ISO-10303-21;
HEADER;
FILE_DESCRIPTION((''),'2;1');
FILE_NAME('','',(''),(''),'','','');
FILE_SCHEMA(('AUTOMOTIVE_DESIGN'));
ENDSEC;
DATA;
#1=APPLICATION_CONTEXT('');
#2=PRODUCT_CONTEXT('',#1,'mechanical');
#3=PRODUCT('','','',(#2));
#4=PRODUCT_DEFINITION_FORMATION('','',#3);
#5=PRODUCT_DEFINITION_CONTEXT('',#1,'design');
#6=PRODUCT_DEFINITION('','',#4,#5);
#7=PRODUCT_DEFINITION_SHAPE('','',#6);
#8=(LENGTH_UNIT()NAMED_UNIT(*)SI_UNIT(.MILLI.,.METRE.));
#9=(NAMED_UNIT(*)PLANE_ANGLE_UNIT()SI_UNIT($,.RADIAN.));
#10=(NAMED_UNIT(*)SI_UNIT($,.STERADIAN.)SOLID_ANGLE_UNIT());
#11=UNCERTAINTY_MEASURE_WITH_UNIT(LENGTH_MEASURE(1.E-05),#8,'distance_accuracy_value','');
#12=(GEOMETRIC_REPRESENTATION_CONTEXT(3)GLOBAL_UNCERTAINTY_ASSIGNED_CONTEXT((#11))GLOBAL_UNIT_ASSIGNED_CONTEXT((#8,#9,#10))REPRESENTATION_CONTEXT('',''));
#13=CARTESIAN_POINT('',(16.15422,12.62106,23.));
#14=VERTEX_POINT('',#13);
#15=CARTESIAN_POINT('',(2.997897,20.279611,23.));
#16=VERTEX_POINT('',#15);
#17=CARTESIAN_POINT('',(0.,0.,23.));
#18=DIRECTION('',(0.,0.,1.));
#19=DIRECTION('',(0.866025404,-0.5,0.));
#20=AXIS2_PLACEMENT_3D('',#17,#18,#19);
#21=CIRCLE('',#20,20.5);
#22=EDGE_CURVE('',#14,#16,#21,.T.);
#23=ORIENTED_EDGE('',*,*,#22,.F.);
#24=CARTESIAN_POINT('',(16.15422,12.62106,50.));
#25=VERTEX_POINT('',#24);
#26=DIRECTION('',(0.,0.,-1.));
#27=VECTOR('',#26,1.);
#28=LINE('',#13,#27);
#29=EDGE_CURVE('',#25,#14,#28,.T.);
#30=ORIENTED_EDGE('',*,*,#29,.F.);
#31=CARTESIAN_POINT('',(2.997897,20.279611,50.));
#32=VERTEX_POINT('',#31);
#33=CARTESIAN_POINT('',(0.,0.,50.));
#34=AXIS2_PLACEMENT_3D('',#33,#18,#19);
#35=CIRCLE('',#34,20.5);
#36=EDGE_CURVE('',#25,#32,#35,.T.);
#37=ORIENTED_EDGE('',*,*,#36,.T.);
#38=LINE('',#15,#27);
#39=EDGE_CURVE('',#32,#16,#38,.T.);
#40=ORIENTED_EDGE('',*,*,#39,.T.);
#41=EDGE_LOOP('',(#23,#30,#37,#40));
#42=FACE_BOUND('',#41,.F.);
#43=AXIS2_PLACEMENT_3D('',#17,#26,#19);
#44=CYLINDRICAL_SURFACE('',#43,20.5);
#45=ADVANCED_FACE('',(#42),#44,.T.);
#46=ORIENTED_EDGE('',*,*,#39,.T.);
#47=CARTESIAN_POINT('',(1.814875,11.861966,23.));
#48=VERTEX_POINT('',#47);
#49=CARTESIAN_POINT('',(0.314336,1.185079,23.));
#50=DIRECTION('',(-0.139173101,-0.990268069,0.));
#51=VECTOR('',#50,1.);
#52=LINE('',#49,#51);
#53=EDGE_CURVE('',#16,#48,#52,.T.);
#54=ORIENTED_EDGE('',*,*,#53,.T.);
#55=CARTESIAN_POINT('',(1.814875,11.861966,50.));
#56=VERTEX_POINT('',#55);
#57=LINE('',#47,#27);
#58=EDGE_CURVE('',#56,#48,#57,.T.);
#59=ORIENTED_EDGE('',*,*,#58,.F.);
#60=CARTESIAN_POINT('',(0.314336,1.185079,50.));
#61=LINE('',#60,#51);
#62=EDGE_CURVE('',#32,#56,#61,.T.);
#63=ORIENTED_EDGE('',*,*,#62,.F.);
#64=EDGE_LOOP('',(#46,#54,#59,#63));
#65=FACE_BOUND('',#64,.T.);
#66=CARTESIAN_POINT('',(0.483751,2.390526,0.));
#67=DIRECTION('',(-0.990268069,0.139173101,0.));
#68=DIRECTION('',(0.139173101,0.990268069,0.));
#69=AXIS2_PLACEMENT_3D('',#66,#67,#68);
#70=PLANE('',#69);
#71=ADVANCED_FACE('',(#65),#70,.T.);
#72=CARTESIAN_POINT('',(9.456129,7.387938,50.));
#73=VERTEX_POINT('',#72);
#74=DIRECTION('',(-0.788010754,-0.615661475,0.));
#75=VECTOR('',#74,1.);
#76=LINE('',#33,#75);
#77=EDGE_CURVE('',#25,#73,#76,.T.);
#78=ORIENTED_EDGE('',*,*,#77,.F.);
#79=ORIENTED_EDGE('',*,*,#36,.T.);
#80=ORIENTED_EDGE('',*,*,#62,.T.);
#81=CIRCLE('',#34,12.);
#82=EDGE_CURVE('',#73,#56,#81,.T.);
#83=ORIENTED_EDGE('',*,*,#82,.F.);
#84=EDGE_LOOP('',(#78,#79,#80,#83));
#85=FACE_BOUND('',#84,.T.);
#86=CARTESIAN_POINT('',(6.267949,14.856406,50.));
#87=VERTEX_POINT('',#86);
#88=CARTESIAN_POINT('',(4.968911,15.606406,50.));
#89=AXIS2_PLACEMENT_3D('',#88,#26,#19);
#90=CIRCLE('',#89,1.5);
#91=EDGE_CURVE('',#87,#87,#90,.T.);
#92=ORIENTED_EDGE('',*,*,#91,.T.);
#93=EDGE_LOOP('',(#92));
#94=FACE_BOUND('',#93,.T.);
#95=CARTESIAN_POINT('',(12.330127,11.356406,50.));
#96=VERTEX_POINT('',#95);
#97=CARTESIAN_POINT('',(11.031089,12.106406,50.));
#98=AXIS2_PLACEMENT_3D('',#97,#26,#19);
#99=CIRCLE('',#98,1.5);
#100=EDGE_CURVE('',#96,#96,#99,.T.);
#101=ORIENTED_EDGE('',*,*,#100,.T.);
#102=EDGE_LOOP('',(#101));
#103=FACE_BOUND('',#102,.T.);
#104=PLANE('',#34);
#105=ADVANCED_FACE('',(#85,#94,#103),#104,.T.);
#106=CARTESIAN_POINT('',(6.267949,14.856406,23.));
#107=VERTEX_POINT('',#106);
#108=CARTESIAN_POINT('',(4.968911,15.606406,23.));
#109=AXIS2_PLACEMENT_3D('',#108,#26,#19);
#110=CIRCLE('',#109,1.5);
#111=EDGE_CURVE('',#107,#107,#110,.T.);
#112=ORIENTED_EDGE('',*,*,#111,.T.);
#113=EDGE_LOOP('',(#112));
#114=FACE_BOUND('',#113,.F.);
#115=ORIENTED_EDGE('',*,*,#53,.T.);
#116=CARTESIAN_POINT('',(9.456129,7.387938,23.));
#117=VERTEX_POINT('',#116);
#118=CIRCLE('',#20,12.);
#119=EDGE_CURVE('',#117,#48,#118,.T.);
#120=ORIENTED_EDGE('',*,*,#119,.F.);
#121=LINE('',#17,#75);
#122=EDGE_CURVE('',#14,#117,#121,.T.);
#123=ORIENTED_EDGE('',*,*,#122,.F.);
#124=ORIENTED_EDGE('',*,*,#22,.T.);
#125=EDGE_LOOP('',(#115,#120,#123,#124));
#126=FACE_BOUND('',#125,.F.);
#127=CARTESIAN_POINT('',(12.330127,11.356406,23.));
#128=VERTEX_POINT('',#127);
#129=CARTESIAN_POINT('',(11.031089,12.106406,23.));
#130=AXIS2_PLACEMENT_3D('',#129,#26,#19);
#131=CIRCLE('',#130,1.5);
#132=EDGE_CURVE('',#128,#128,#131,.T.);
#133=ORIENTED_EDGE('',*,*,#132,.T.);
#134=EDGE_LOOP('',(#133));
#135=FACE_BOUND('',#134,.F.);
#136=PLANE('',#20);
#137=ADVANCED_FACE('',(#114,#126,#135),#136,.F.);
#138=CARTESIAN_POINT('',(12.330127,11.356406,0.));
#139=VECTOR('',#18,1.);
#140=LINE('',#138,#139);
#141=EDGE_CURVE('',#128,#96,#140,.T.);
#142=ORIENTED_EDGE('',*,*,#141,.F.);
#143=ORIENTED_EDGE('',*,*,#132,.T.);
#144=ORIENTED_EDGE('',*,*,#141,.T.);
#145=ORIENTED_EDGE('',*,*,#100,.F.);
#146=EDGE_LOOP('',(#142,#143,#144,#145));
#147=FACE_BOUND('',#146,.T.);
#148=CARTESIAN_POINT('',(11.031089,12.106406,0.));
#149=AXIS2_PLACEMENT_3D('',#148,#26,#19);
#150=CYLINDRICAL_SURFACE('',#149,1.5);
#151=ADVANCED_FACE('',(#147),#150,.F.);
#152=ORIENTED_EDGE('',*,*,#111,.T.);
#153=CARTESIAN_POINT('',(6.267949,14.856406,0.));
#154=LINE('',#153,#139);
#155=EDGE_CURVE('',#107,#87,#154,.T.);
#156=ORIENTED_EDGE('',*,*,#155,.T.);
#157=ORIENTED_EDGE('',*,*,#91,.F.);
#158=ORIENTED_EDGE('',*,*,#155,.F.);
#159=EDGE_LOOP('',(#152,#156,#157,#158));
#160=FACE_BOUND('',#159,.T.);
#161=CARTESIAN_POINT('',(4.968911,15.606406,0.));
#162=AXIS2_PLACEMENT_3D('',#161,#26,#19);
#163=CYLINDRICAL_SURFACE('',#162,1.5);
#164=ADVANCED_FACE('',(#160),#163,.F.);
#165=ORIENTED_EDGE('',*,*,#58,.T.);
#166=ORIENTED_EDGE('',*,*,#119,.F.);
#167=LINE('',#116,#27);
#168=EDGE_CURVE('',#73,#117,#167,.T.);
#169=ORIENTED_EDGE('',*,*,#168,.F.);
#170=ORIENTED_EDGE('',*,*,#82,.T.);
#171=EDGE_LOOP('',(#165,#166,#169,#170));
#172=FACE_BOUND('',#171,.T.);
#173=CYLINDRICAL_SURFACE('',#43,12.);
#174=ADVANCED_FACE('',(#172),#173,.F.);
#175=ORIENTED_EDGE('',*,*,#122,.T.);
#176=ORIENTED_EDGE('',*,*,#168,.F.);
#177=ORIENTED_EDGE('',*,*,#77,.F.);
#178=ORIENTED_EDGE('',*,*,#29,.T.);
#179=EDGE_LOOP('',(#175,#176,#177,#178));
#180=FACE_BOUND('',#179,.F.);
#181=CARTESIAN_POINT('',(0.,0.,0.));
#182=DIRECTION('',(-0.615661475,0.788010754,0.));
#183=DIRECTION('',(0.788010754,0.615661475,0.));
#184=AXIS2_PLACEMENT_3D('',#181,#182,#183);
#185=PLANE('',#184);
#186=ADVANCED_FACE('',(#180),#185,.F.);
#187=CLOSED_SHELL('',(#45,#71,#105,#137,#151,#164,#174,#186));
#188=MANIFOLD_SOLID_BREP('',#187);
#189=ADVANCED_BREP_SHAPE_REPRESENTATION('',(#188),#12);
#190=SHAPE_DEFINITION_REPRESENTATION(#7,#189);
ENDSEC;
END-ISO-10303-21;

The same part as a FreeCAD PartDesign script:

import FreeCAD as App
import Part
import Sketcher
from FreeCAD import Vector
Q = App.Units.Quantity


def add_polygon(sketch, points):
    """Adds a closed chain of lines whose ends are joined by coincident constraints."""
    first, n = sketch.GeometryCount, len(points)
    for a, b in zip(points, points[1:] + points[:1]):
        sketch.addGeometry(Part.LineSegment(App.Vector(*a, 0), App.Vector(*b, 0)), False)
    for i in range(n):
        sketch.addConstraint(Sketcher.Constraint("Coincident", first + i, 2, first + (i + 1) % n, 1))

doc = App.newDocument("Part")
body = doc.addObject("PartDesign::Body", "Body")

sketch1 = body.newObject("Sketcher::SketchObject", "Sketch")
sketch1.AttachmentSupport = (doc.getObject("XY_Plane"), [""])
sketch1.MapMode = "FlatFace"
sketch1.addGeometry(Part.Circle(Vector(-3.5, 16, 0), Vector(0, 0, 1), 1.5), False)
sketch1.addConstraint([
    Sketcher.Constraint("Diameter", 0, Q("3 mm")),
    Sketcher.Constraint("DistanceY", -1, 1, 0, 3, Q("16 mm")),
    Sketcher.Constraint("DistanceX", 0, 3, -1, 1, Q("3.5 mm")),
])
pad1 = body.newObject("PartDesign::Pad", "Pad")
pad1.Profile = sketch1
pad1.Length = 60
body2 = doc.addObject("PartDesign::Body", "Body001")
body2.AllowCompound = True

sketch2 = body2.newObject("Sketcher::SketchObject", "Sketch001")
sketch2.AttachmentSupport = (doc.getObject("XY_Plane001"), [""])
sketch2.MapMode = "FlatFace"
sketch2.addGeometry(Part.Circle(Vector(3.5, 16, 0), Vector(0, 0, 1), 1.5), False)
sketch2.addConstraint([
    Sketcher.Constraint("Diameter", 0, Q("3 mm")),
    Sketcher.Constraint("DistanceY", -1, 1, 0, 3, Q("16 mm")),
    Sketcher.Constraint("DistanceX", -1, 1, 0, 3, Q("3.5 mm")),
])
pad2 = body2.newObject("PartDesign::Pad", "Pad001")
pad2.Profile = sketch2
pad2.Length = 60
doc.recompute()

boolean = body2.newObject("PartDesign::Boolean", "Boolean")
boolean.Type = "Fuse"
boolean.addObjects([body])
body3 = doc.addObject("PartDesign::Body", "Body002")

sketch3 = body3.newObject("Sketcher::SketchObject", "Sketch002")
sketch3.AttachmentSupport = (doc.getObject("XY_Plane002"), [""])
sketch3.MapMode = "FlatFace"
add_polygon(sketch3, [(0, 40), (0, 0), (20, 0), (20, 40)])
sketch3.addConstraint([
    Sketcher.Constraint("Vertical", 0),
    Sketcher.Constraint("Horizontal", 1),
    Sketcher.Constraint("Vertical", 2),
    Sketcher.Constraint("Horizontal", 3),
    Sketcher.Constraint("Coincident", 0, 2, -1, 1),
    Sketcher.Constraint("DistanceX", 1, 1, 1, 2, Q("20 mm")),
    Sketcher.Constraint("DistanceY", 0, 2, 0, 1, Q("40 mm")),
])
pad3 = body3.newObject("PartDesign::Pad", "Pad002")
pad3.Profile = sketch3
pad3.Length = 60
body4 = doc.addObject("PartDesign::Body", "Body003")
doc.recompute()

body3.Placement = App.Placement(Vector(0, 0, 0), App.Rotation(Vector(0, 0, -1), 22))
boolean2 = body4.newObject("PartDesign::Boolean", "Boolean001")
boolean2.Type = "Fuse"
boolean2.addObjects([body3])
body5 = doc.addObject("PartDesign::Body", "Body004")

sketch4 = body5.newObject("Sketcher::SketchObject", "Sketch003")
sketch4.AttachmentSupport = (doc.getObject("XY_Plane004"), [""])
sketch4.MapMode = "FlatFace"
add_polygon(sketch4, [(0, 40), (0, 0), (20, 0), (20, 40)])
sketch4.addConstraint([
    Sketcher.Constraint("Vertical", 0),
    Sketcher.Constraint("Horizontal", 1),
    Sketcher.Constraint("Vertical", 2),
    Sketcher.Constraint("Horizontal", 3),
    Sketcher.Constraint("Coincident", 0, 2, -1, 1),
    Sketcher.Constraint("DistanceX", 1, 1, 1, 2, Q("20 mm")),
    Sketcher.Constraint("DistanceY", 0, 2, 0, 1, Q("40 mm")),
])
pad4 = body5.newObject("PartDesign::Pad", "Pad003")
pad4.Profile = sketch4
pad4.Length = 60
body6 = doc.addObject("PartDesign::Body", "Body005")
doc.recompute()

body5.Placement = App.Placement(Vector(-19.32, -5.18, 0), App.Rotation(Vector(0, 0, 1), 22))
boolean3 = body6.newObject("PartDesign::Boolean", "Boolean002")
boolean3.Type = "Fuse"
boolean3.addObjects([body5])
body7 = doc.addObject("PartDesign::Body", "Body006")

sketch5 = body7.newObject("Sketcher::SketchObject", "Sketch004")
sketch5.AttachmentSupport = (doc.getObject("XY_Plane006"), [""])
sketch5.MapMode = "FlatFace"
add_polygon(sketch5, [(-30, 5), (-30, -35), (30, -35), (30, 5)])
sketch5.addConstraint([
    Sketcher.Constraint("Vertical", 0),
    Sketcher.Constraint("Horizontal", 1),
    Sketcher.Constraint("Vertical", 2),
    Sketcher.Constraint("Horizontal", 3),
    Sketcher.Constraint("DistanceX", 1, 1, 1, 2, Q("60 mm")),
    Sketcher.Constraint("DistanceY", 0, 2, 0, 1, Q("40 mm")),
    Sketcher.Constraint("DistanceX", 0, 2, -1, 1, Q("30 mm")),
    Sketcher.Constraint("DistanceY", 0, 2, -1, 1, Q("35 mm")),
])
pad5 = body7.newObject("PartDesign::Pad", "Pad004")
pad5.Profile = sketch5
pad5.Length = 60
body8 = doc.addObject("PartDesign::Body", "Body007")

sketch6 = body8.newObject("Sketcher::SketchObject", "Sketch005")
sketch6.AttachmentSupport = (doc.getObject("XY_Plane007"), [""])
sketch6.MapMode = "FlatFace"
sketch6.AttachmentOffset = App.Placement(Vector(0, 0, 23), App.Rotation())
sketch6.addGeometry([
    Part.Circle(Vector(0, 0, 0), Vector(0, 0, 1), 20),
    Part.Circle(Vector(0, 0, 0), Vector(0, 0, 1), 12),
], False)
sketch6.addConstraint([
    Sketcher.Constraint("Coincident", 0, 3, -1, 1),
    Sketcher.Constraint("Coincident", 1, 3, -1, 1),
    Sketcher.Constraint("Diameter", 0, Q("41 mm")),
    Sketcher.Constraint("Diameter", 1, Q("24 mm")),
])
pad6 = body8.newObject("PartDesign::Pad", "Pad005")
pad6.Profile = sketch6
pad6.Length = 27
doc.recompute()

boolean4 = body8.newObject("PartDesign::Boolean", "Boolean003")
boolean4.Type = "Cut"
boolean4.addObjects([body7])
doc.recompute()

boolean5 = body8.newObject("PartDesign::Boolean", "Boolean004")
boolean5.Type = "Cut"
boolean5.addObjects([body6])
doc.recompute()

boolean6 = body8.newObject("PartDesign::Boolean", "Boolean005")
boolean6.Type = "Cut"
boolean6.addObjects([body4])
doc.recompute()

boolean7 = body8.newObject("PartDesign::Boolean", "Boolean006")
boolean7.Type = "Cut"
boolean7.addObjects([body2])
body9 = doc.addObject("PartDesign::Body", "Body008")
doc.recompute()

body8.Placement = App.Placement(Vector(0, 0, 0), App.Rotation(Vector(0, 0, -1), 30))
boolean8 = body9.newObject("PartDesign::Boolean", "Boolean007")
boolean8.Type = "Fuse"
boolean8.addObjects([body8])

doc.recompute()
